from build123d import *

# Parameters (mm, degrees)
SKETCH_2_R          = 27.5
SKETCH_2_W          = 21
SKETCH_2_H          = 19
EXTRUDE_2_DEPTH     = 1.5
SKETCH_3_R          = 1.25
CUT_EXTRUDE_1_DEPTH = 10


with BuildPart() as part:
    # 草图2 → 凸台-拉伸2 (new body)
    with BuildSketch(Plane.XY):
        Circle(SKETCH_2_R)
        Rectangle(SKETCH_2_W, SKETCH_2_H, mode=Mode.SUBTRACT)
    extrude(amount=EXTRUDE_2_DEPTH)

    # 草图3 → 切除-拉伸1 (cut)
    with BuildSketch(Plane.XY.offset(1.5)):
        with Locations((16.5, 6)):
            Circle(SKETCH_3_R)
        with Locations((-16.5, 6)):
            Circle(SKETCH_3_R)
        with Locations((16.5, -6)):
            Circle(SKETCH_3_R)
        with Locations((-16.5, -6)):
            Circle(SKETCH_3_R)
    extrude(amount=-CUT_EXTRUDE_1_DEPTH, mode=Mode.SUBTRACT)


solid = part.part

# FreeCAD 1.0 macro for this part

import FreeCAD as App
import Part
import Sketcher

doc = App.newDocument("Part")
params = doc.addObject("Spreadsheet::Sheet", "Params")
for row, (alias, value) in enumerate([
    ("sketch1_diameter", "55 mm"),
    ("sketch1_width", "21 mm"),
    ("sketch1_height", "19 mm"),
    ("pad1_length", "1.5 mm"),
    ("sketch2_diameter", "2.5 mm"),
    ("pocket1_length", "10 mm"),
], start=1):
    params.set(f"A{row}", alias)
    params.set(f"B{row}", "=" + value)
    params.setAlias(f"B{row}", alias)

body = doc.addObject("PartDesign::Body", "Body")

sketch1 = body.newObject("Sketcher::SketchObject", "Sketch")
sketch1.AttachmentSupport = (doc.getObject("XY_Plane"), [""])
sketch1.MapMode = "FlatFace"
sketch1.addGeometry([
    Part.Circle(App.Vector(0, 0, 0), App.Vector(0, 0, 1), 28),
    Part.LineSegment(App.Vector(10, -10, 0), App.Vector(-10, -10, 0)),
    Part.LineSegment(App.Vector(-10, -10, 0), App.Vector(-10, 10, 0)),
    Part.LineSegment(App.Vector(-10, 10, 0), App.Vector(10, 10, 0)),
    Part.LineSegment(App.Vector(10, 10, 0), App.Vector(10, -10, 0)),
], False)
sketch1.addConstraint([
    Sketcher.Constraint("Coincident", 1, 2, 2, 1),
    Sketcher.Constraint("Coincident", 2, 2, 3, 1),
    Sketcher.Constraint("Coincident", 3, 2, 4, 1),
    Sketcher.Constraint("Coincident", 4, 2, 1, 1),
    Sketcher.Constraint("Horizontal", 1),
    Sketcher.Constraint("Vertical", 2),
    Sketcher.Constraint("Horizontal", 3),
    Sketcher.Constraint("Vertical", 4),
    Sketcher.Constraint("Coincident", 0, 3, -1, 1),
    Sketcher.Constraint("Symmetric", 1, 2, 3, 2, -1, 1),
    Sketcher.Constraint("Diameter", 0, 55.0),
    Sketcher.Constraint("DistanceX", 1, 2, 1, 1, 21.0),
    Sketcher.Constraint("DistanceY", 2, 1, 2, 2, 19.0),
])
sketch1.setExpression("Constraints[10]", "Params.sketch1_diameter")
sketch1.setExpression("Constraints[11]", "Params.sketch1_width")
sketch1.setExpression("Constraints[12]", "Params.sketch1_height")
pad1 = body.newObject("PartDesign::Pad", "Pad")
pad1.Profile = sketch1
pad1.setExpression("Length", "Params.pad1_length")

sketch2 = body.newObject("Sketcher::SketchObject", "Sketch001")
sketch2.AttachmentSupport = (doc.getObject("XY_Plane"), [""])
sketch2.MapMode = "FlatFace"
sketch2.AttachmentOffset = App.Placement(App.Vector(0, 0, 1.5), App.Rotation())
sketch2.addGeometry([
    Part.Circle(App.Vector(16.5, 6, 0), App.Vector(0, 0, 1), 1.2),
    Part.Circle(App.Vector(-16.5, 6, 0), App.Vector(0, 0, 1), 1.2),
    Part.Circle(App.Vector(16.5, -6, 0), App.Vector(0, 0, 1), 1.2),
    Part.Circle(App.Vector(-16.5, -6, 0), App.Vector(0, 0, 1), 1.2),
], False)
sketch2.addConstraint([
    Sketcher.Constraint("Equal", 0, 1),
    Sketcher.Constraint("Equal", 1, 2),
    Sketcher.Constraint("Equal", 2, 3),
    Sketcher.Constraint("Symmetric", 1, 3, 2, 3, -1, 1),
    Sketcher.Constraint("Symmetric", 0, 3, 3, 3, -1, 1),
    Sketcher.Constraint("Symmetric", 0, 3, 1, 3, -2),
    Sketcher.Constraint("Diameter", 0, 2.5),
    Sketcher.Constraint("DistanceY", -1, 1, 0, 3, 6.0),
    Sketcher.Constraint("DistanceX", 1, 3, 0, 3, 33.0),
])
sketch2.setExpression("Constraints[6]", "Params.sketch2_diameter")
pocket1 = body.newObject("PartDesign::Pocket", "Pocket")
pocket1.Profile = sketch2
pocket1.setExpression("Length", "Params.pocket1_length")

doc.recompute()
